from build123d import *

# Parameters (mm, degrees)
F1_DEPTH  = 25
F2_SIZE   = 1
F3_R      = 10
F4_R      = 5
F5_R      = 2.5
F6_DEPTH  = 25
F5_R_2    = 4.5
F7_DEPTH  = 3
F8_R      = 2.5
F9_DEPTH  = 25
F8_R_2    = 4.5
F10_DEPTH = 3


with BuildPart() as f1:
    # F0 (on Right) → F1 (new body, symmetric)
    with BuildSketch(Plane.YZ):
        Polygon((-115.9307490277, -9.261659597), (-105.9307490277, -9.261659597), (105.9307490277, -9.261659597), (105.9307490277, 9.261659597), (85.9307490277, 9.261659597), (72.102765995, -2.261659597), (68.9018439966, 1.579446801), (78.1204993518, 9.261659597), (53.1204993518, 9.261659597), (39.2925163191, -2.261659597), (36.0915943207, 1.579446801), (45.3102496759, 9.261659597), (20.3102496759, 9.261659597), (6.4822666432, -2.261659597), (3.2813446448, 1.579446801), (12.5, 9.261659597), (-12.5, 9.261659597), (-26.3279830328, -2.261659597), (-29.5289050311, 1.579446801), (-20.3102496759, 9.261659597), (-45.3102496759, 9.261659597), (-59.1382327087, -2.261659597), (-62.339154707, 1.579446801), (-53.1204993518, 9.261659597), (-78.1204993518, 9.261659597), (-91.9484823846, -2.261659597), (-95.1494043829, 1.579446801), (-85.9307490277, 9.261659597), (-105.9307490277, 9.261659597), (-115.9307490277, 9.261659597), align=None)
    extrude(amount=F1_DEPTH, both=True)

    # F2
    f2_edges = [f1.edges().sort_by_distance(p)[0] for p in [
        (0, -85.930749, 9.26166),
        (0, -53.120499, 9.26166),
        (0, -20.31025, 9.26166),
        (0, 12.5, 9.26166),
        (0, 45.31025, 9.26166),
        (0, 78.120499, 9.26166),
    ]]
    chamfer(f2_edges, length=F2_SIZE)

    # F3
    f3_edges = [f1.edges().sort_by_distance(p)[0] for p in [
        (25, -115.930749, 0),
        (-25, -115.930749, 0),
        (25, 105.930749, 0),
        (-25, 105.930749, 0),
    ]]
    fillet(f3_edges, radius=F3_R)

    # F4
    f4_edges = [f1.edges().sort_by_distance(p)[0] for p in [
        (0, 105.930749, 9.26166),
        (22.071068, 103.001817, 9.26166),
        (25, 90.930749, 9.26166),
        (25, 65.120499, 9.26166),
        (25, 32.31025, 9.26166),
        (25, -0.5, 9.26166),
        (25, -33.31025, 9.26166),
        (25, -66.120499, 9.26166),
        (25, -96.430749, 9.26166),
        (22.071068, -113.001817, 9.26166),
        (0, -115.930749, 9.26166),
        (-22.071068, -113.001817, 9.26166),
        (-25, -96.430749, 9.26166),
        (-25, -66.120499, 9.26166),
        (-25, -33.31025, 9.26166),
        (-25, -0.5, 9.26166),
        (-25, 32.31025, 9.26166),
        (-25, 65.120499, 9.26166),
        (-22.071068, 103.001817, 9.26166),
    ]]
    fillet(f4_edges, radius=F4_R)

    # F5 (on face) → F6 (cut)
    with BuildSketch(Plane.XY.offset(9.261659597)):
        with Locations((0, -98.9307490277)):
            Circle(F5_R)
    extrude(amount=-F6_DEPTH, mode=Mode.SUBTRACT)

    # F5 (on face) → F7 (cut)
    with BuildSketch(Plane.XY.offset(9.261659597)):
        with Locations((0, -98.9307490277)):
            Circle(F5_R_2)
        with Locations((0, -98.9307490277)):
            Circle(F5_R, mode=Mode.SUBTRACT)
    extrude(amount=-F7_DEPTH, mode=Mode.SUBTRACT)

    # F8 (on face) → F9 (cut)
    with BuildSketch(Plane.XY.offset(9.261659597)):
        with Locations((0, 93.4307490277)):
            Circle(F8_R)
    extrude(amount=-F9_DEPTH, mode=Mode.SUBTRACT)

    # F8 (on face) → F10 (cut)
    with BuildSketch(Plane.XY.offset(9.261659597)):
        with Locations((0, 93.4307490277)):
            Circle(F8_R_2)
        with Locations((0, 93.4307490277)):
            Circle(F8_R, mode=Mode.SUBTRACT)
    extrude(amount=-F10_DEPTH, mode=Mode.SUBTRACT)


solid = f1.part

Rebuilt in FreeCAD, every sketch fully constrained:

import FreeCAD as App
import Part
import Sketcher

V = App.Vector
Q = App.Units.Quantity


def edges_at(feature, points):
    """Names of the edges that pass closest to the given points."""
    edges = feature.Shape.Edges
    near = lambda p: min(range(len(edges)), key=lambda i: edges[i].distToShape(Part.Vertex(*p))[0])
    return sorted({f"Edge{near(p) + 1}" for p in points})


def add_polygon(sketch, points):
    """Adds a closed chain of lines whose ends are joined by coincident constraints."""
    first, n = sketch.GeometryCount, len(points)
    for a, b in zip(points, points[1:] + points[:1]):
        sketch.addGeometry(Part.LineSegment(App.Vector(*a, 0), App.Vector(*b, 0)), False)
    for i in range(n):
        sketch.addConstraint(Sketcher.Constraint("Coincident", first + i, 2, first + (i + 1) % n, 1))

doc = App.newDocument("Part")
body = doc.addObject("PartDesign::Body", "Body")

sketch1 = doc.addObject("Sketcher::SketchObject", "Sketch")
body.addObject(sketch1)
sketch1.AttachmentSupport = (doc.YZ_Plane, [""])
sketch1.MapMode = "FlatFace"
add_polygon(sketch1, [(-115.9, -9.3), (105.9, -9.3), (105.9, 9.3), (85.9, 9.3), (72.1, -2.3), (68.9, 1.6), (78.1, 9.3), (53.1, 9.3), (39.3, -2.3), (36.1, 1.6), (45.3, 9.3), (20.3, 9.3), (6.5, -2.3), (3.3, 1.6), (12.5, 9.3), (-12.5, 9.3), (-26.3, -2.3), (-29.5, 1.6), (-20.3, 9.3), (-45.3, 9.3), (-59.1, -2.3), (-62.3, 1.6), (-53.1, 9.3), (-78.1, 9.3), (-91.9, -2.3), (-95.1, 1.6), (-85.9, 9.3), (-115.9, 9.3)])
sketch1.addConstraint([
    Sketcher.Constraint("Horizontal", 0),
    Sketcher.Constraint("Vertical", 1),
    Sketcher.Constraint("Horizontal", 2),
    Sketcher.Constraint("Horizontal", 6),
    Sketcher.Constraint("Horizontal", 10),
    Sketcher.Constraint("Horizontal", 14),
    Sketcher.Constraint("Horizontal", 18),
    Sketcher.Constraint("Horizontal", 22),
    Sketcher.Constraint("Horizontal", 26),
    Sketcher.Constraint("Vertical", 27),
    Sketcher.Constraint("Symmetric", 10, 2, 17, 2, -2),
    Sketcher.Constraint("Symmetric", 6, 2, 21, 2, -2),
    Sketcher.Constraint("Symmetric", 2, 2, 25, 2, -2),
    Sketcher.Constraint("Perpendicular", 3, 4),
    Sketcher.Constraint("Perpendicular", 4, 5),
    Sketcher.Constraint("Parallel", 5, 7),
    Sketcher.Constraint("Perpendicular", 7, 8),
    Sketcher.Constraint("Perpendicular", 8, 9),
    Sketcher.Constraint("Parallel", 9, 11),
    Sketcher.Constraint("Perpendicular", 11, 12),
    Sketcher.Constraint("Perpendicular", 12, 13),
    Sketcher.Constraint("Parallel", 13, 15),
    Sketcher.Constraint("Perpendicular", 15, 16),
    Sketcher.Constraint("Perpendicular", 16, 17),
    Sketcher.Constraint("Parallel", 17, 19),
    Sketcher.Constraint("Perpendicular", 19, 20),
    Sketcher.Constraint("Perpendicular", 20, 21),
    Sketcher.Constraint("Parallel", 21, 23),
    Sketcher.Constraint("Perpendicular", 23, 24),
    Sketcher.Constraint("Perpendicular", 24, 25),
    Sketcher.Constraint("Horizontal", 2, 2, 5, 2),
    Sketcher.Constraint("Horizontal", 3, 2, 7, 2),
    Sketcher.Constraint("Horizontal", 4, 2, 8, 2),
    Sketcher.Constraint("Horizontal", 6, 2, 9, 2),
    Sketcher.Constraint("Horizontal", 7, 2, 11, 2),
    Sketcher.Constraint("Horizontal", 8, 2, 12, 2),
    Sketcher.Constraint("Horizontal", 10, 2, 13, 2),
    Sketcher.Constraint("Horizontal", 11, 2, 15, 2),
    Sketcher.Constraint("Horizontal", 12, 2, 16, 2),
    Sketcher.Constraint("Horizontal", 15, 2, 19, 2),
    Sketcher.Constraint("Horizontal", 16, 2, 20, 2),
    Sketcher.Constraint("Horizontal", 19, 2, 23, 2),
    Sketcher.Constraint("Horizontal", 20, 2, 24, 2),
    Sketcher.Constraint("Equal", 6, 10),
    Sketcher.Constraint("Equal", 10, 14),
    Sketcher.Constraint("DistanceX", 2, 2, 2, 1, Q("20 mm")),
    Sketcher.Constraint("DistanceX", 6, 2, 6, 1, Q("25 mm")),
    Sketcher.Constraint("DistanceX", 26, 2, 26, 1, Q("30 mm")),
    Sketcher.Constraint("Distance", 3, Q("18 mm")),
    Sketcher.Constraint("Distance", 4, Q("5 mm")),
    Sketcher.Constraint("Distance", 5, Q("12 mm")),
    Sketcher.Constraint("DistanceY", 0, 2, 3, 2, Q("7 mm")),
    Sketcher.Constraint("DistanceY", 0, 2, -1, 1, Q("9.26166 mm")),
])
pad1 = doc.addObject("PartDesign::Pad", "Pad")
body.addObject(pad1)
pad1.Profile = sketch1
pad1.Length = 50
pad1.Midplane = True
doc.recompute()

chamfer = doc.addObject("PartDesign::Chamfer", "Chamfer")
body.addObject(chamfer)
chamfer.Base = (pad1, edges_at(pad1, [
    (0, -85.931, 9.262),
    (0, -53.12, 9.262),
    (0, -20.31, 9.262),
    (0, 12.5, 9.262),
    (0, 45.31, 9.262),
    (0, 78.12, 9.262),
]))
chamfer.Size = 1
doc.recompute()

fillet = doc.addObject("PartDesign::Fillet", "Fillet")
body.addObject(fillet)
fillet.Base = (chamfer, edges_at(chamfer, [
    (25, -115.931, 0),
    (-25, -115.931, 0),
    (25, 105.931, 0),
    (-25, 105.931, 0),
]))
fillet.Radius = 10
doc.recompute()

fillet2 = doc.addObject("PartDesign::Fillet", "Fillet001")
body.addObject(fillet2)
fillet2.Base = (fillet, edges_at(fillet, [
    (0, 105.931, 9.262),
    (22.071, 103.002, 9.262),
    (25, 90.931, 9.262),
    (25, 65.12, 9.262),
    (25, 32.31, 9.262),
    (25, -0.5, 9.262),
    (25, -33.31, 9.262),
    (25, -66.12, 9.262),
    (25, -96.431, 9.262),
    (22.071, -113.002, 9.262),
    (0, -115.931, 9.262),
    (-22.071, -113.002, 9.262),
    (-25, -96.431, 9.262),
    (-25, -66.12, 9.262),
    (-25, -33.31, 9.262),
    (-25, -0.5, 9.262),
    (-25, 32.31, 9.262),
    (-25, 65.12, 9.262),
    (-22.071, 103.002, 9.262),
]))
fillet2.Radius = 5

sketch2 = doc.addObject("Sketcher::SketchObject", "Sketch001")
body.addObject(sketch2)
sketch2.AttachmentSupport = (doc.XY_Plane, [""])
sketch2.MapMode = "FlatFace"
sketch2.AttachmentOffset = App.Placement(V(0, 0, 9.26166), App.Rotation())
sketch2.addGeometry(Part.Circle(V(0, -98.9, 0), V(0, 0, 1), 2.5), False)
sketch2.addConstraint([
    Sketcher.Constraint("PointOnObject", 0, 3, -2),
    Sketcher.Constraint("Diameter", 0, Q("5 mm")),
    Sketcher.Constraint("DistanceY", 0, 3, -1, 1, Q("98.930749 mm")),
])
pocket1 = doc.addObject("PartDesign::Pocket", "Pocket")
body.addObject(pocket1)
pocket1.Profile = sketch2
pocket1.Length = 25

sketch3 = doc.addObject("Sketcher::SketchObject", "Sketch002")
body.addObject(sketch3)
sketch3.AttachmentSupport = (doc.XY_Plane, [""])
sketch3.MapMode = "FlatFace"
sketch3.AttachmentOffset = App.Placement(V(0, 0, 9.26166), App.Rotation())
sketch3.addGeometry([
    Part.Circle(V(0, -98.9, 0), V(0, 0, 1), 4.5),
    Part.Circle(V(0, -98.9, 0), V(0, 0, 1), 2.5),
], False)
sketch3.addConstraint([
    Sketcher.Constraint("Coincident", 1, 3, 0, 3),
    Sketcher.Constraint("PointOnObject", 0, 3, -2),
    Sketcher.Constraint("Diameter", 0, Q("9 mm")),
    Sketcher.Constraint("Diameter", 1, Q("5 mm")),
    Sketcher.Constraint("DistanceY", 0, 3, -1, 1, Q("98.930749 mm")),
])
pocket2 = doc.addObject("PartDesign::Pocket", "Pocket001")
body.addObject(pocket2)
pocket2.Profile = sketch3
pocket2.Length = 3

sketch4 = doc.addObject("Sketcher::SketchObject", "Sketch003")
body.addObject(sketch4)
sketch4.AttachmentSupport = (doc.XY_Plane, [""])
sketch4.MapMode = "FlatFace"
sketch4.AttachmentOffset = App.Placement(V(0, 0, 9.26166), App.Rotation())
sketch4.addGeometry(Part.Circle(V(0, 93.4, 0), V(0, 0, 1), 2.5), False)
sketch4.addConstraint([
    Sketcher.Constraint("PointOnObject", 0, 3, -2),
    Sketcher.Constraint("Diameter", 0, Q("5 mm")),
    Sketcher.Constraint("DistanceY", -1, 1, 0, 3, Q("93.430749 mm")),
])
pocket3 = doc.addObject("PartDesign::Pocket", "Pocket002")
body.addObject(pocket3)
pocket3.Profile = sketch4
pocket3.Length = 25

sketch5 = doc.addObject("Sketcher::SketchObject", "Sketch004")
body.addObject(sketch5)
sketch5.AttachmentSupport = (doc.XY_Plane, [""])
sketch5.MapMode = "FlatFace"
sketch5.AttachmentOffset = App.Placement(V(0, 0, 9.26166), App.Rotation())
sketch5.addGeometry([
    Part.Circle(V(0, 93.4, 0), V(0, 0, 1), 4.5),
    Part.Circle(V(0, 93.4, 0), V(0, 0, 1), 2.5),
], False)
sketch5.addConstraint([
    Sketcher.Constraint("Coincident", 1, 3, 0, 3),
    Sketcher.Constraint("PointOnObject", 0, 3, -2),
    Sketcher.Constraint("Diameter", 0, Q("9 mm")),
    Sketcher.Constraint("Diameter", 1, Q("5 mm")),
    Sketcher.Constraint("DistanceY", -1, 1, 0, 3, Q("93.430749 mm")),
])
pocket4 = doc.addObject("PartDesign::Pocket", "Pocket003")
body.addObject(pocket4)
pocket4.Profile = sketch5
pocket4.Length = 3

doc.recompute()
